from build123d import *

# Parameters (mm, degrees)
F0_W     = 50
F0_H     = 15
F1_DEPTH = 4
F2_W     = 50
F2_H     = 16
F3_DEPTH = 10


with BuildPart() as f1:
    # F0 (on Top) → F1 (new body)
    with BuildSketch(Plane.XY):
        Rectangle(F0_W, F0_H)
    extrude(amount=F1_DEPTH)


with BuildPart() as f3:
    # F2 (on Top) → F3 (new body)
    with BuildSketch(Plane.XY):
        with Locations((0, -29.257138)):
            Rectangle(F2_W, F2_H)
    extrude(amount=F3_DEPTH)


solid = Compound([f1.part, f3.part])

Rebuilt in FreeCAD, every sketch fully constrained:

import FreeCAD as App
import Part
import Sketcher
Q = App.Units.Quantity

doc = App.newDocument("Part")
params = doc.addObject("Spreadsheet::Sheet", "Params")
for row, (alias, value) in enumerate([
    ("sketch1_width", "50 mm"),
    ("sketch1_height", "15 mm"),
    ("pad1_length", "4 mm"),
    ("sketch2_width", "50 mm"),
    ("sketch2_height", "16 mm"),
    ("pad2_length", "10 mm"),
], start=1):
    params.set(f"A{row}", alias)
    params.set(f"B{row}", "=" + value)
    params.setAlias(f"B{row}", alias)

body = doc.addObject("PartDesign::Body", "Body")

sketch1 = doc.addObject("Sketcher::SketchObject", "Sketch")
body.addObject(sketch1)
sketch1.AttachmentSupport = (doc.XY_Plane, [""])
sketch1.MapMode = "FlatFace"
sketch1.addGeometry([
    Part.LineSegment(App.Vector(-25, 8, 0), App.Vector(-25, -8, 0)),
    Part.LineSegment(App.Vector(-25, -8, 0), App.Vector(25, -8, 0)),
    Part.LineSegment(App.Vector(25, -8, 0), App.Vector(25, 8, 0)),
    Part.LineSegment(App.Vector(25, 8, 0), App.Vector(-25, 8, 0)),
], False)
sketch1.addConstraint([
    Sketcher.Constraint("Coincident", 0, 2, 1, 1),
    Sketcher.Constraint("Coincident", 1, 2, 2, 1),
    Sketcher.Constraint("Coincident", 2, 2, 3, 1),
    Sketcher.Constraint("Coincident", 3, 2, 0, 1),
    Sketcher.Constraint("Vertical", 0),
    Sketcher.Constraint("Horizontal", 1),
    Sketcher.Constraint("Vertical", 2),
    Sketcher.Constraint("Horizontal", 3),
    Sketcher.Constraint("Symmetric", 0, 2, 2, 2, -1, 1),
    Sketcher.Constraint("DistanceX", 1, 1, 1, 2, Q("50 mm")),
    Sketcher.Constraint("DistanceY", 0, 2, 0, 1, Q("15 mm")),
])
sketch1.setExpression("Constraints[9]", "Params.sketch1_width")
sketch1.setExpression("Constraints[10]", "Params.sketch1_height")
pad1 = doc.addObject("PartDesign::Pad", "Pad")
body.addObject(pad1)
pad1.Profile = sketch1
pad1.setExpression("Length", "Params.pad1_length")
body2 = doc.addObject("PartDesign::Body", "Body001")

sketch2 = doc.addObject("Sketcher::SketchObject", "Sketch001")
body2.addObject(sketch2)
sketch2.AttachmentSupport = (doc.getObject("XY_Plane001"), [""])
sketch2.MapMode = "FlatFace"
sketch2.addGeometry([
    Part.LineSegment(App.Vector(-25, -21, 0), App.Vector(-25, -37, 0)),
    Part.LineSegment(App.Vector(-25, -37, 0), App.Vector(25, -37, 0)),
    Part.LineSegment(App.Vector(25, -37, 0), App.Vector(25, -21, 0)),
    Part.LineSegment(App.Vector(25, -21, 0), App.Vector(-25, -21, 0)),
], False)
sketch2.addConstraint([
    Sketcher.Constraint("Coincident", 0, 2, 1, 1),
    Sketcher.Constraint("Coincident", 1, 2, 2, 1),
    Sketcher.Constraint("Coincident", 2, 2, 3, 1),
    Sketcher.Constraint("Coincident", 3, 2, 0, 1),
    Sketcher.Constraint("Vertical", 0),
    Sketcher.Constraint("Horizontal", 1),
    Sketcher.Constraint("Vertical", 2),
    Sketcher.Constraint("Horizontal", 3),
    Sketcher.Constraint("DistanceX", 1, 1, 1, 2, Q("50 mm")),
    Sketcher.Constraint("DistanceY", 0, 2, 0, 1, Q("16 mm")),
    Sketcher.Constraint("DistanceX", 0, 2, -1, 1, Q("25 mm")),
    Sketcher.Constraint("DistanceY", 2, 2, -1, 1, Q("21.257138 mm")),
])
sketch2.setExpression("Constraints[8]", "Params.sketch2_width")
sketch2.setExpression("Constraints[9]", "Params.sketch2_height")
pad2 = doc.addObject("PartDesign::Pad", "Pad001")
body2.addObject(pad2)
pad2.Profile = sketch2
pad2.setExpression("Length", "Params.pad2_length")

doc.recompute()
